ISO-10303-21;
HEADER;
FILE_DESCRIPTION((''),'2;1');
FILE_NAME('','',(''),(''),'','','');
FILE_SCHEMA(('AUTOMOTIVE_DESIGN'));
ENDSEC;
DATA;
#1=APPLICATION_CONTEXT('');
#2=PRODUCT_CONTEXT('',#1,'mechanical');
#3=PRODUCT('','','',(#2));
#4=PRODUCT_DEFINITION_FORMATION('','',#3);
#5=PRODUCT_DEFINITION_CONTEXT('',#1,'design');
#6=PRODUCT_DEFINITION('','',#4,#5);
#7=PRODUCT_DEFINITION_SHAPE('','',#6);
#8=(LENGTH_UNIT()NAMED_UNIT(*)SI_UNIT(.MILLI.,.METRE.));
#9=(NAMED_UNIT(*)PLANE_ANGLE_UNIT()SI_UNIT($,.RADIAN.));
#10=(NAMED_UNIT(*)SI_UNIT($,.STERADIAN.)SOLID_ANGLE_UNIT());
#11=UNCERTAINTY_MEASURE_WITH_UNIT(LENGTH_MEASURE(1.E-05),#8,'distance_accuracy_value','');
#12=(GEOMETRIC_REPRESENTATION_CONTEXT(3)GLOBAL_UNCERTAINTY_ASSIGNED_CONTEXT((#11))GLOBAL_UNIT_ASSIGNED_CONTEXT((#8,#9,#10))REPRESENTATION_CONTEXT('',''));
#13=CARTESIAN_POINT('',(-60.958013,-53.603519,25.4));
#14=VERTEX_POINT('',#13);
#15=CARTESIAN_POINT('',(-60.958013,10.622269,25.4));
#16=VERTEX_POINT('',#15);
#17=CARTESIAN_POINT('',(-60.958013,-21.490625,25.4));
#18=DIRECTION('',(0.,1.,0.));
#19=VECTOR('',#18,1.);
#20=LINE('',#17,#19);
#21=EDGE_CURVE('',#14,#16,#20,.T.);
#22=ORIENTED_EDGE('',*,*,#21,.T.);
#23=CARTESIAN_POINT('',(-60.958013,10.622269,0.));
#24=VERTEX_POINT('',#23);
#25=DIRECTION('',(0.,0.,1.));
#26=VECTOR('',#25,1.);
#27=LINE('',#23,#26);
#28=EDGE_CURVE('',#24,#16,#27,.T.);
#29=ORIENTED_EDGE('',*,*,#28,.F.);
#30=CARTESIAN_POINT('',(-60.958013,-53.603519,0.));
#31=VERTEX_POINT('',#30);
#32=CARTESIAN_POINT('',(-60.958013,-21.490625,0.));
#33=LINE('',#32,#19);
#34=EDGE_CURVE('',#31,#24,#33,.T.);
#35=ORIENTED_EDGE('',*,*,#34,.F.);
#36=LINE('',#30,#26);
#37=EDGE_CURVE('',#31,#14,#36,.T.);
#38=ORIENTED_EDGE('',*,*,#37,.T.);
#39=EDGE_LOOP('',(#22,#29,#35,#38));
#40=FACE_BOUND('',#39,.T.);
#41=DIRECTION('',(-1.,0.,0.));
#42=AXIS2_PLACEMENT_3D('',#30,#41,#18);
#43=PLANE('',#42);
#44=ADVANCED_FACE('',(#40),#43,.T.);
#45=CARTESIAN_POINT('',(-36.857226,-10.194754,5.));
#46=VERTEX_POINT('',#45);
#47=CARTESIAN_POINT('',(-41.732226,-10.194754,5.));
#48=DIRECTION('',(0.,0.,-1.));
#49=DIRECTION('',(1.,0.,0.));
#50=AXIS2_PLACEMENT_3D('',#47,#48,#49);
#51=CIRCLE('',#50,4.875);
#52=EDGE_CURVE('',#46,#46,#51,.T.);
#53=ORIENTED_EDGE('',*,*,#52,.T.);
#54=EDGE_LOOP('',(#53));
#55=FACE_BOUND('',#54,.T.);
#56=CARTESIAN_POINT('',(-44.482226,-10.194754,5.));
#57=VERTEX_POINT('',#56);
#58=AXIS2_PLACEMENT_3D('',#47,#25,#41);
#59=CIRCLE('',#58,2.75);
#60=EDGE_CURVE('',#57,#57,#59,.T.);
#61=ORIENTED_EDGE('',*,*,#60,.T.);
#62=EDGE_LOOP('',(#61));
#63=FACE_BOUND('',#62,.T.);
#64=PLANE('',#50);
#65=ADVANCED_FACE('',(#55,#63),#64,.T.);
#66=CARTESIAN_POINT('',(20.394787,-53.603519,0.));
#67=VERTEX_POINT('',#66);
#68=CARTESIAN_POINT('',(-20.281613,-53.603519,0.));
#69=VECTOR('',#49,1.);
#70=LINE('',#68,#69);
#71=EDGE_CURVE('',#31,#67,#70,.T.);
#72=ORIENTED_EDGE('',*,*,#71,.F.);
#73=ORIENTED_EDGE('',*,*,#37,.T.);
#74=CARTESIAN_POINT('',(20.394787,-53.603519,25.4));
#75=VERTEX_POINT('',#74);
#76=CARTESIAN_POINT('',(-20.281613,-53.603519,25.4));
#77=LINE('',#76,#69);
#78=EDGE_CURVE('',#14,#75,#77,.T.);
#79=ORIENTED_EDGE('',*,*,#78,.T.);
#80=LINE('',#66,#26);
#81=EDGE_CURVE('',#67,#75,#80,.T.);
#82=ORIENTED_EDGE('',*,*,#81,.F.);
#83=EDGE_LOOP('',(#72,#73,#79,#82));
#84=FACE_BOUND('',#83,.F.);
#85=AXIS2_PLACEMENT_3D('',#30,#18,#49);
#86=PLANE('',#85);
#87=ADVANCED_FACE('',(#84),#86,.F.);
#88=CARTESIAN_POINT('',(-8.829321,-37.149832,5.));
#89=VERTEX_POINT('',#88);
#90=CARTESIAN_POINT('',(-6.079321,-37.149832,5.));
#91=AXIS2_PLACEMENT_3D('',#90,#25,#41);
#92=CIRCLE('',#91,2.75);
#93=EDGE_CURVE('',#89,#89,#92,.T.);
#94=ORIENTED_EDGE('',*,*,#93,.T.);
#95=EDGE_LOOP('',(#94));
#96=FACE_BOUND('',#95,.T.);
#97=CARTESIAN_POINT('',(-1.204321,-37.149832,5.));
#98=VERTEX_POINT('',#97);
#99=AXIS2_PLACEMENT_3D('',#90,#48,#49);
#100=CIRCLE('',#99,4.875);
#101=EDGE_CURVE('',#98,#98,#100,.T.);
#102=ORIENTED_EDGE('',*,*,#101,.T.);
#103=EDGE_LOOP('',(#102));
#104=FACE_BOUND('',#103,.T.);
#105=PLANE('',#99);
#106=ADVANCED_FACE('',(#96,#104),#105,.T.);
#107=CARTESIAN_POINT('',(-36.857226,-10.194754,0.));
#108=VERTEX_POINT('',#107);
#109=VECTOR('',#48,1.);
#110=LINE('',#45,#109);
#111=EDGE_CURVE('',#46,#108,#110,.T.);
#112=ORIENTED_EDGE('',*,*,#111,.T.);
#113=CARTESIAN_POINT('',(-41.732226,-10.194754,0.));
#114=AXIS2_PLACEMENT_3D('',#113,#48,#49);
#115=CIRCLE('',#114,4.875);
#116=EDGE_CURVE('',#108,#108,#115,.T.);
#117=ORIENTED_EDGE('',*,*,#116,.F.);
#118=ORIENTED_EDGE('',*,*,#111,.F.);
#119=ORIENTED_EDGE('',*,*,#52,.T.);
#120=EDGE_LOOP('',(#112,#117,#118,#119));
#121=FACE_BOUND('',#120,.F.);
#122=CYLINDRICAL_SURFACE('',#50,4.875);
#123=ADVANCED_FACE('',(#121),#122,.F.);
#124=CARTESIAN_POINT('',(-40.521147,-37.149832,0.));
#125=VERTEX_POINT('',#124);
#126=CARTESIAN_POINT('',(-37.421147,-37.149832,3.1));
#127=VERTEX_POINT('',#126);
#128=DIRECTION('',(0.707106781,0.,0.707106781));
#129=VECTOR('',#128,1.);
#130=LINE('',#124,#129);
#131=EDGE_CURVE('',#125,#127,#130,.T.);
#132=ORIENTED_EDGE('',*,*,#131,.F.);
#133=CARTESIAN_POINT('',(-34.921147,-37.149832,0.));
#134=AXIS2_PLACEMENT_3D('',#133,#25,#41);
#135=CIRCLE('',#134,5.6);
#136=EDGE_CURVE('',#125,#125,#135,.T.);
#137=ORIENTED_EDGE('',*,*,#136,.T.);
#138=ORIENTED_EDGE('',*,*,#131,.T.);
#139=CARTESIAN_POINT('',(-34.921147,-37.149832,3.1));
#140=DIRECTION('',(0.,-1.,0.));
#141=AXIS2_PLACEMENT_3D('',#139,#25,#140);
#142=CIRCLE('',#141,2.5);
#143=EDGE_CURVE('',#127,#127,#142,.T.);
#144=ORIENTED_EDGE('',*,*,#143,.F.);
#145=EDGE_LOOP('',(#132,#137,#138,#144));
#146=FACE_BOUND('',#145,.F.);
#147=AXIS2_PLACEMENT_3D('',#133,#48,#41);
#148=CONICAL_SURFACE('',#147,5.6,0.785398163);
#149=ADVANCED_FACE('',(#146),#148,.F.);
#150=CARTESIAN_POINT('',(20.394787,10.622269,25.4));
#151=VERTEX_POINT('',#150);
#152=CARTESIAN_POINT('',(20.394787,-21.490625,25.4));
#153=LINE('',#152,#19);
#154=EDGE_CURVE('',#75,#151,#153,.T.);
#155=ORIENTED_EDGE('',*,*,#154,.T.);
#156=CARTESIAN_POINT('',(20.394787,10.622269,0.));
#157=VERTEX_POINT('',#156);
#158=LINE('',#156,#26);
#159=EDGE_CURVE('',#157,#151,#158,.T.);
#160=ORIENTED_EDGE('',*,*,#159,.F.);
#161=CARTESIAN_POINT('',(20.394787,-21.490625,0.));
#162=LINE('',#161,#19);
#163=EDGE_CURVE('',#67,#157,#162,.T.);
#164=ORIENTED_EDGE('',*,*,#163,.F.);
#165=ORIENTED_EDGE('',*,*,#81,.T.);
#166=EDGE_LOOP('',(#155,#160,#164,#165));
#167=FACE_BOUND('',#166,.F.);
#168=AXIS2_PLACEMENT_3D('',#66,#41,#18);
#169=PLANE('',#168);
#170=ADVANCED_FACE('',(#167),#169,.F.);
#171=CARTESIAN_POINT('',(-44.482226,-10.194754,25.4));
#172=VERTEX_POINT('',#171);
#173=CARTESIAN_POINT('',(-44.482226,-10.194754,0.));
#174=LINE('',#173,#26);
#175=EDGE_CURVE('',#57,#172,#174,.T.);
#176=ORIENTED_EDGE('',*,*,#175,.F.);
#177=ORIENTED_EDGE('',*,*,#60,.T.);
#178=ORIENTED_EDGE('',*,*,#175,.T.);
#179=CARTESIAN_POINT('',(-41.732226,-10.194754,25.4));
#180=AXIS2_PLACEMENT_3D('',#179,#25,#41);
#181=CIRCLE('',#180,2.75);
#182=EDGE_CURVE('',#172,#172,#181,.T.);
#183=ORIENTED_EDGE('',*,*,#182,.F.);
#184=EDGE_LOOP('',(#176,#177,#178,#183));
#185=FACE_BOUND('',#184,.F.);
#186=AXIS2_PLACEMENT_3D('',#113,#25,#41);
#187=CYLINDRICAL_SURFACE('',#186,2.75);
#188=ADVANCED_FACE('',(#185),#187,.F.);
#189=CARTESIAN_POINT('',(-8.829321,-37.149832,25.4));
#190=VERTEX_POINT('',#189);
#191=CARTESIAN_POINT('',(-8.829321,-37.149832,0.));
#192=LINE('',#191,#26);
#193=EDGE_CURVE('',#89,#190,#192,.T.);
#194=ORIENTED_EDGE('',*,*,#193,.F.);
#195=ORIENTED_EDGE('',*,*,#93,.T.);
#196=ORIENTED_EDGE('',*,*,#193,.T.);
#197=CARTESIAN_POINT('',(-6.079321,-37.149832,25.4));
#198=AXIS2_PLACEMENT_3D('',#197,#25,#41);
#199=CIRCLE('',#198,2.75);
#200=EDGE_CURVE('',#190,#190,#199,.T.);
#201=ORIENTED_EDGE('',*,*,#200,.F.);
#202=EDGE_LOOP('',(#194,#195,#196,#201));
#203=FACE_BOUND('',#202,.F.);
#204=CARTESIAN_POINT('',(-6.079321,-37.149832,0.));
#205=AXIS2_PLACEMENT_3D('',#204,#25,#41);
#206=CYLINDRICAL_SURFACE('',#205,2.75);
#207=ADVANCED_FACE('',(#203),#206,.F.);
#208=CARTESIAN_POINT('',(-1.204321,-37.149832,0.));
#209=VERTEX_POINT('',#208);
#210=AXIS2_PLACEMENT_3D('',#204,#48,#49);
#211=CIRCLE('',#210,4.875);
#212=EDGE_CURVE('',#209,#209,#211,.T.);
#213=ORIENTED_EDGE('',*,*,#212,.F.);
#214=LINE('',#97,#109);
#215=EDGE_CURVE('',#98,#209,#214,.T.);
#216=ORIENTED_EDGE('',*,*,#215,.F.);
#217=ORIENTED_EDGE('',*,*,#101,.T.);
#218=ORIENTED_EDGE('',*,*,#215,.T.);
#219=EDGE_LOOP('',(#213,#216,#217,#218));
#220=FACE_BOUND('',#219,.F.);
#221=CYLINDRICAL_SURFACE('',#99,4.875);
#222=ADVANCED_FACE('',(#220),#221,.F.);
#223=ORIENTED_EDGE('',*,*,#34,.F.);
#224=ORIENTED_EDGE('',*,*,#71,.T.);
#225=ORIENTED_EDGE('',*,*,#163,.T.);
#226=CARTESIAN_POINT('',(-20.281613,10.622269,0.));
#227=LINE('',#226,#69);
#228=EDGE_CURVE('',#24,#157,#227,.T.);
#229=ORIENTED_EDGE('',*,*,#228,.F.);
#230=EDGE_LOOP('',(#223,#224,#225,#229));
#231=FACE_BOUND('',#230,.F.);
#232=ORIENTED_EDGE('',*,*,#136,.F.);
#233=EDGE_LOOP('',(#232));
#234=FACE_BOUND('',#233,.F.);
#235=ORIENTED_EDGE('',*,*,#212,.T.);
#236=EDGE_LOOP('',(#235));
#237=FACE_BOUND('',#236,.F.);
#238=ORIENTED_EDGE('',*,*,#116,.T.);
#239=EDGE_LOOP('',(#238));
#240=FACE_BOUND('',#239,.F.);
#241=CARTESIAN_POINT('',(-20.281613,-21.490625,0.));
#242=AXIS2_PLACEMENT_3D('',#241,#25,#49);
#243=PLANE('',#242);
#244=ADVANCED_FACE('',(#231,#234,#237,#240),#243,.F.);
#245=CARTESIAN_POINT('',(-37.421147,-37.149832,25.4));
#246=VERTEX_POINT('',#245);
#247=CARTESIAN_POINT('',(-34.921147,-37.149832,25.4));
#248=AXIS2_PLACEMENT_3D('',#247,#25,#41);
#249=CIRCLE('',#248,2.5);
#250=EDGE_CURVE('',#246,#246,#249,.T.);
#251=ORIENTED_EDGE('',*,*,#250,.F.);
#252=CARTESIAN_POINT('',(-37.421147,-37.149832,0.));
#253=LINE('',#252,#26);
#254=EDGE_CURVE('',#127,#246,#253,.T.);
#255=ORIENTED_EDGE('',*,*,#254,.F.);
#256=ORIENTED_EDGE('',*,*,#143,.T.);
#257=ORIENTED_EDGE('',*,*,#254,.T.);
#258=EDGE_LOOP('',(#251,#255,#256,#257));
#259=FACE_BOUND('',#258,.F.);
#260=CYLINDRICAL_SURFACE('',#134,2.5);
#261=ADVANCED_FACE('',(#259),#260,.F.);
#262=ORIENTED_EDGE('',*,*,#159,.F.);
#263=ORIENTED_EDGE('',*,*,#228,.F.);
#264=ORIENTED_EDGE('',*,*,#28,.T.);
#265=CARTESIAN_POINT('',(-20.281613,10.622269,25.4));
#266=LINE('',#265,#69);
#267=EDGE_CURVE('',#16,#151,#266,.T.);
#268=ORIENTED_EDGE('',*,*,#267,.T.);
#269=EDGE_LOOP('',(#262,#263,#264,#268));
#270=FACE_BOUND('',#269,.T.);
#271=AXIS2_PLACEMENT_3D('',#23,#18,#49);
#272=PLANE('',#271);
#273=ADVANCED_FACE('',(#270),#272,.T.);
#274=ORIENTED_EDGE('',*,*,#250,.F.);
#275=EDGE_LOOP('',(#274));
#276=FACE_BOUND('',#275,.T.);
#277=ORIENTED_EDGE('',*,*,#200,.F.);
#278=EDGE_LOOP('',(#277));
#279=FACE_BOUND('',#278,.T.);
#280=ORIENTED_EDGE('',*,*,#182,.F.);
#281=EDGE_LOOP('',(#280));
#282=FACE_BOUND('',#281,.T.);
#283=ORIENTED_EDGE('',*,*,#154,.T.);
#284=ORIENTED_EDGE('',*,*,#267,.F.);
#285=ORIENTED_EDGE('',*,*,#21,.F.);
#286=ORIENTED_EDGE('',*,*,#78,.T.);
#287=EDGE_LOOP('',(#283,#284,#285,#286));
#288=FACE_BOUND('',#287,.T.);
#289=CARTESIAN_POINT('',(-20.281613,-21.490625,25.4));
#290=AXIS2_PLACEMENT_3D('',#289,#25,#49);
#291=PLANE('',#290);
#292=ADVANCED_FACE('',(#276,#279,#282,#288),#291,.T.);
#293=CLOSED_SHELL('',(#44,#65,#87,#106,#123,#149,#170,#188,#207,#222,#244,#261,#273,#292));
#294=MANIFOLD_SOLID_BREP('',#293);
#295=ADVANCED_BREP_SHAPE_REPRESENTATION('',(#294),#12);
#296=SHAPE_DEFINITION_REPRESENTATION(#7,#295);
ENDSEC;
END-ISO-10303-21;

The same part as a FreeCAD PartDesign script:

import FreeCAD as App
import Part
import Sketcher

V = App.Vector
Q = App.Units.Quantity

doc = App.newDocument("Part")
body = doc.addObject("PartDesign::Body", "Body")

sketch1 = doc.addObject("Sketcher::SketchObject", "Sketch")
body.addObject(sketch1)
sketch1.AttachmentSupport = (doc.XY_Plane, [""])
sketch1.MapMode = "FlatFace"
sketch1.addGeometry([
    Part.LineSegment(V(-61, 11, 0), V(-61, -54, 0)),
    Part.LineSegment(V(-61, -54, 0), V(20, -54, 0)),
    Part.LineSegment(V(20, -54, 0), V(20, 11, 0)),
    Part.LineSegment(V(20, 11, 0), V(-61, 11, 0)),
], False)
sketch1.addConstraint([
    Sketcher.Constraint("Coincident", 0, 2, 1, 1),
    Sketcher.Constraint("Coincident", 1, 2, 2, 1),
    Sketcher.Constraint("Coincident", 2, 2, 3, 1),
    Sketcher.Constraint("Coincident", 3, 2, 0, 1),
    Sketcher.Constraint("Vertical", 0),
    Sketcher.Constraint("Horizontal", 1),
    Sketcher.Constraint("Vertical", 2),
    Sketcher.Constraint("Horizontal", 3),
    Sketcher.Constraint("DistanceX", 1, 1, 1, 2, Q("81.3528 mm")),
    Sketcher.Constraint("DistanceY", 0, 2, 0, 1, Q("64.225787 mm")),
    Sketcher.Constraint("DistanceY", 0, 2, -1, 1, Q("53.603519 mm")),
    Sketcher.Constraint("DistanceX", 0, 2, -1, 1, Q("60.958013 mm")),
])
pad1 = doc.addObject("PartDesign::Pad", "Pad")
body.addObject(pad1)
pad1.Profile = sketch1
pad1.Length = 25.4

sketch2 = doc.addObject("Sketcher::SketchObject", "Sketch001")
body.addObject(sketch2)
sketch2.AttachmentSupport = (doc.XY_Plane, [""])
sketch2.MapMode = "FlatFace"
sketch2.addGeometry(Part.Circle(V(-34.9, -37.1, 0), V(0, 0, 1), 2.5), False)
sketch2.addConstraint([
    Sketcher.Constraint("Diameter", 0, Q("5 mm")),
    Sketcher.Constraint("DistanceY", 0, 3, -1, 1, Q("37.149832 mm")),
    Sketcher.Constraint("DistanceX", 0, 3, -1, 1, Q("34.921147 mm")),
])
doc.recompute()
hole = doc.addObject("PartDesign::Hole", "Hole")
body.addObject(hole)
hole.Profile = sketch2
hole.ThreadType = "None"
hole.Diameter = 5
hole.DepthType = "ThroughAll"
hole.HoleCutType = "Countersink"
hole.HoleCutDiameter = 11.2
hole.HoleCutCountersinkAngle = 90
hole.Reversed = True

sketch3 = doc.addObject("Sketcher::SketchObject", "Sketch002")
body.addObject(sketch3)
sketch3.AttachmentSupport = (doc.XY_Plane, [""])
sketch3.MapMode = "FlatFace"
sketch3.addGeometry(Part.Circle(V(-41.7, -10.2, 0), V(0, 0, 1), 2.8), False)
sketch3.addConstraint([
    Sketcher.Constraint("Diameter", 0, Q("5.5 mm")),
    Sketcher.Constraint("DistanceX", 0, 3, -1, 1, Q("41.732226 mm")),
    Sketcher.Constraint("DistanceY", 0, 3, -1, 1, Q("10.194754 mm")),
])
doc.recompute()
hole2 = doc.addObject("PartDesign::Hole", "Hole001")
body.addObject(hole2)
hole2.Profile = sketch3
hole2.ThreadType = "None"
hole2.Diameter = 5.5
hole2.DepthType = "ThroughAll"
hole2.HoleCutType = "Counterbore"
hole2.HoleCutDiameter = 9.75
hole2.HoleCutDepth = 5
hole2.Reversed = True

sketch4 = doc.addObject("Sketcher::SketchObject", "Sketch003")
body.addObject(sketch4)
sketch4.AttachmentSupport = (doc.XY_Plane, [""])
sketch4.MapMode = "FlatFace"
sketch4.addGeometry(Part.Circle(V(-6.1, -37.1, 0), V(0, 0, 1), 2.8), False)
sketch4.addConstraint([
    Sketcher.Constraint("Diameter", 0, Q("5.5 mm")),
    Sketcher.Constraint("DistanceX", 0, 3, -1, 1, Q("6.079321 mm")),
    Sketcher.Constraint("DistanceY", 0, 3, -1, 1, Q("37.149832 mm")),
])
doc.recompute()
hole3 = doc.addObject("PartDesign::Hole", "Hole002")
body.addObject(hole3)
hole3.Profile = sketch4
hole3.ThreadType = "None"
hole3.Diameter = 5.5
hole3.DepthType = "ThroughAll"
hole3.HoleCutType = "Counterbore"
hole3.HoleCutDiameter = 9.75
hole3.HoleCutDepth = 5
hole3.Reversed = True

doc.recompute()
